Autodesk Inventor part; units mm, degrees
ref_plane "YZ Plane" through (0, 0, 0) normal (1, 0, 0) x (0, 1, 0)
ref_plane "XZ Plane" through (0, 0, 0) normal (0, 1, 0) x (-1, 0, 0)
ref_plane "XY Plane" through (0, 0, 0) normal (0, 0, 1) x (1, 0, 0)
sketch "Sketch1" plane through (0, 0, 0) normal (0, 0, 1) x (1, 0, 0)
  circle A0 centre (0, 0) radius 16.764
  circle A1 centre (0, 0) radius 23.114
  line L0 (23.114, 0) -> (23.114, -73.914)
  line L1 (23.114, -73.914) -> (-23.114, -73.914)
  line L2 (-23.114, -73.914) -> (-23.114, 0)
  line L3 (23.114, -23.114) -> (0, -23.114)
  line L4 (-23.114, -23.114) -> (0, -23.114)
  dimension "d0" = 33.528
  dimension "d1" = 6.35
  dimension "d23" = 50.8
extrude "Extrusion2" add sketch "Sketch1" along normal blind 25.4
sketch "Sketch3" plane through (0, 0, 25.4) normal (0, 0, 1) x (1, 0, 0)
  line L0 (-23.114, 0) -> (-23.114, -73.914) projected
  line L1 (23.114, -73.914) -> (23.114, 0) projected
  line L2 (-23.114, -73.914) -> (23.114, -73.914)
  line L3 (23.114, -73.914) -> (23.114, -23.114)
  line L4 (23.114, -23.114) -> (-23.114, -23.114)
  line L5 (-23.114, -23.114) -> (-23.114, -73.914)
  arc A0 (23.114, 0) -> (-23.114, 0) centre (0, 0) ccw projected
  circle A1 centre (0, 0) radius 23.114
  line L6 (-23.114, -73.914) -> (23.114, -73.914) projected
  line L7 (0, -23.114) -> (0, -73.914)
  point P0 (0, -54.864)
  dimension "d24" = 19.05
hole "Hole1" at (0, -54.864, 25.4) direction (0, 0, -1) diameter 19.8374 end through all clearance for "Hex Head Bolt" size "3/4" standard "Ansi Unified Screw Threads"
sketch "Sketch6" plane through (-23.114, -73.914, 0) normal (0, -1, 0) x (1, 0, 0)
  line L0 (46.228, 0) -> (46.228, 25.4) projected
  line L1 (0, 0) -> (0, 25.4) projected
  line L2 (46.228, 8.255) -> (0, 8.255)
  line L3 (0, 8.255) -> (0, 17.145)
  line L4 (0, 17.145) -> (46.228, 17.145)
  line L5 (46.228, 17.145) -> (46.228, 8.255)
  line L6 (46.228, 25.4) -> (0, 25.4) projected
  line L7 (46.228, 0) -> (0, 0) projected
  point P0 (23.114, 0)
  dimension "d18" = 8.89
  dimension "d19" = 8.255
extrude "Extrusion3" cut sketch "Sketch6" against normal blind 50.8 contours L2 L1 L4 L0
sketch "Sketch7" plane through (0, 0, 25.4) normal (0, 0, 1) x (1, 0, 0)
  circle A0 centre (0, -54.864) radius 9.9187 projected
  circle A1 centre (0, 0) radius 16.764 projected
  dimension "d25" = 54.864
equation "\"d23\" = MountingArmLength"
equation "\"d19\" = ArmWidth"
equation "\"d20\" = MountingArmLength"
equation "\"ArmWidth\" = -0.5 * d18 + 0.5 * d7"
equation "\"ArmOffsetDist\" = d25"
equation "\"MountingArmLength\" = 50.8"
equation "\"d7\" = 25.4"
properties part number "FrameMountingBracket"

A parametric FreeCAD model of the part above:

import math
import FreeCAD as App
import Part
import Sketcher

V = App.Vector
Q = App.Units.Quantity


def add_polygon(sketch, points):
    """Adds a closed chain of lines whose ends are joined by coincident constraints."""
    first, n = sketch.GeometryCount, len(points)
    for a, b in zip(points, points[1:] + points[:1]):
        sketch.addGeometry(Part.LineSegment(App.Vector(*a, 0), App.Vector(*b, 0)), False)
    for i in range(n):
        sketch.addConstraint(Sketcher.Constraint("Coincident", first + i, 2, first + (i + 1) % n, 1))

doc = App.newDocument("Part")
body = doc.addObject("PartDesign::Body", "Body")

sketch1 = doc.addObject("Sketcher::SketchObject", "Sketch")
body.addObject(sketch1)
sketch1.AttachmentSupport = (doc.XY_Plane, [""])
sketch1.MapMode = "FlatFace"
sketch1.addGeometry(Part.ArcOfCircle(Part.Circle(V(0, 0, 0), V(0, 0, 1), 23), math.radians(0), math.radians(180)), False)
sketch1.addGeometry(Part.LineSegment(V(-23, 0, 0), V(-23, -74, 0)), False)
sketch1.addGeometry(Part.LineSegment(V(-23, -74, 0), V(23, -74, 0)), False)
sketch1.addGeometry(Part.LineSegment(V(23, -74, 0), V(23, 0, 0)), False)
sketch1.addGeometry(Part.Circle(V(0, 0, 0), V(0, 0, 1), 17), False)
sketch1.addConstraint(Sketcher.Constraint("Tangent", 0, 2, 1, 1))
sketch1.addConstraint(Sketcher.Constraint("Coincident", 1, 2, 2, 1))
sketch1.addConstraint(Sketcher.Constraint("Coincident", 2, 2, 3, 1))
sketch1.addConstraint(Sketcher.Constraint("Tangent", 3, 2, 0, 1))
sketch1.addConstraint(Sketcher.Constraint("Vertical", 1))
sketch1.addConstraint(Sketcher.Constraint("Horizontal", 2))
sketch1.addConstraint(Sketcher.Constraint("Vertical", 3))
sketch1.addConstraint(Sketcher.Constraint("Coincident", 0, 3, -1, 1))
sketch1.addConstraint(Sketcher.Constraint("Coincident", 4, 3, -1, 1))
sketch1.addConstraint(Sketcher.Constraint("Diameter", 4, Q("1.32 in")))
sketch1.addConstraint(Sketcher.Constraint("Radius", 0, Q("0.91 in")))
sketch1.addConstraint(Sketcher.Constraint("DistanceY", 1, 2, 1, 1, Q("2.91 in")))
pad1 = doc.addObject("PartDesign::Pad", "Pad")
body.addObject(pad1)
pad1.Profile = sketch1
pad1.Length = Q("1 in")

sketch2 = doc.addObject("Sketcher::SketchObject", "Sketch001")
body.addObject(sketch2)
sketch2.AttachmentSupport = (doc.XY_Plane, [""])
sketch2.MapMode = "FlatFace"
sketch2.AttachmentOffset = App.Placement(V(0, 0, 1 * 25.4), App.Rotation())
sketch2.addGeometry(Part.Circle(V(0, -55, 0), V(0, 0, 1), 10), False)
sketch2.addConstraint(Sketcher.Constraint("PointOnObject", 0, 3, -2))
sketch2.addConstraint(Sketcher.Constraint("Diameter", 0, Q("0.781 in")))
sketch2.addConstraint(Sketcher.Constraint("DistanceY", 0, 3, -1, 1, Q("2.16 in")))
doc.recompute()
hole = doc.addObject("PartDesign::Hole", "Hole")
body.addObject(hole)
hole.Profile = sketch2
hole.ThreadType = "None"
hole.Diameter = Q("0.781 in")
hole.DepthType = "ThroughAll"

sketch3 = doc.addObject("Sketcher::SketchObject", "Sketch002")
body.addObject(sketch3)
sketch3.AttachmentSupport = (doc.XZ_Plane, [""])
sketch3.MapMode = "FlatFace"
sketch3.AttachmentOffset = App.Placement(V(0, 0, 2.91 * 25.4), App.Rotation())
add_polygon(sketch3, [(-23, 8), (23, 8), (23, 17), (-23, 17)])
sketch3.addConstraint(Sketcher.Constraint("Horizontal", 0))
sketch3.addConstraint(Sketcher.Constraint("Vertical", 1))
sketch3.addConstraint(Sketcher.Constraint("Horizontal", 2))
sketch3.addConstraint(Sketcher.Constraint("Vertical", 3))
sketch3.addConstraint(Sketcher.Constraint("DistanceY", 1, 1, 1, 2, Q("0.35 in")))
sketch3.addConstraint(Sketcher.Constraint("DistanceY", -1, 1, 0, 2, Q("0.325 in")))
sketch3.addConstraint(Sketcher.Constraint("DistanceX", 0, 1, 0, 2, Q("1.82 in")))
sketch3.addConstraint(Sketcher.Constraint("DistanceX", -1, 1, 0, 2, Q("0.91 in")))
pocket1 = doc.addObject("PartDesign::Pocket", "Pocket")
body.addObject(pocket1)
pocket1.Profile = sketch3
pocket1.Length = Q("2 in")

doc.recompute()
